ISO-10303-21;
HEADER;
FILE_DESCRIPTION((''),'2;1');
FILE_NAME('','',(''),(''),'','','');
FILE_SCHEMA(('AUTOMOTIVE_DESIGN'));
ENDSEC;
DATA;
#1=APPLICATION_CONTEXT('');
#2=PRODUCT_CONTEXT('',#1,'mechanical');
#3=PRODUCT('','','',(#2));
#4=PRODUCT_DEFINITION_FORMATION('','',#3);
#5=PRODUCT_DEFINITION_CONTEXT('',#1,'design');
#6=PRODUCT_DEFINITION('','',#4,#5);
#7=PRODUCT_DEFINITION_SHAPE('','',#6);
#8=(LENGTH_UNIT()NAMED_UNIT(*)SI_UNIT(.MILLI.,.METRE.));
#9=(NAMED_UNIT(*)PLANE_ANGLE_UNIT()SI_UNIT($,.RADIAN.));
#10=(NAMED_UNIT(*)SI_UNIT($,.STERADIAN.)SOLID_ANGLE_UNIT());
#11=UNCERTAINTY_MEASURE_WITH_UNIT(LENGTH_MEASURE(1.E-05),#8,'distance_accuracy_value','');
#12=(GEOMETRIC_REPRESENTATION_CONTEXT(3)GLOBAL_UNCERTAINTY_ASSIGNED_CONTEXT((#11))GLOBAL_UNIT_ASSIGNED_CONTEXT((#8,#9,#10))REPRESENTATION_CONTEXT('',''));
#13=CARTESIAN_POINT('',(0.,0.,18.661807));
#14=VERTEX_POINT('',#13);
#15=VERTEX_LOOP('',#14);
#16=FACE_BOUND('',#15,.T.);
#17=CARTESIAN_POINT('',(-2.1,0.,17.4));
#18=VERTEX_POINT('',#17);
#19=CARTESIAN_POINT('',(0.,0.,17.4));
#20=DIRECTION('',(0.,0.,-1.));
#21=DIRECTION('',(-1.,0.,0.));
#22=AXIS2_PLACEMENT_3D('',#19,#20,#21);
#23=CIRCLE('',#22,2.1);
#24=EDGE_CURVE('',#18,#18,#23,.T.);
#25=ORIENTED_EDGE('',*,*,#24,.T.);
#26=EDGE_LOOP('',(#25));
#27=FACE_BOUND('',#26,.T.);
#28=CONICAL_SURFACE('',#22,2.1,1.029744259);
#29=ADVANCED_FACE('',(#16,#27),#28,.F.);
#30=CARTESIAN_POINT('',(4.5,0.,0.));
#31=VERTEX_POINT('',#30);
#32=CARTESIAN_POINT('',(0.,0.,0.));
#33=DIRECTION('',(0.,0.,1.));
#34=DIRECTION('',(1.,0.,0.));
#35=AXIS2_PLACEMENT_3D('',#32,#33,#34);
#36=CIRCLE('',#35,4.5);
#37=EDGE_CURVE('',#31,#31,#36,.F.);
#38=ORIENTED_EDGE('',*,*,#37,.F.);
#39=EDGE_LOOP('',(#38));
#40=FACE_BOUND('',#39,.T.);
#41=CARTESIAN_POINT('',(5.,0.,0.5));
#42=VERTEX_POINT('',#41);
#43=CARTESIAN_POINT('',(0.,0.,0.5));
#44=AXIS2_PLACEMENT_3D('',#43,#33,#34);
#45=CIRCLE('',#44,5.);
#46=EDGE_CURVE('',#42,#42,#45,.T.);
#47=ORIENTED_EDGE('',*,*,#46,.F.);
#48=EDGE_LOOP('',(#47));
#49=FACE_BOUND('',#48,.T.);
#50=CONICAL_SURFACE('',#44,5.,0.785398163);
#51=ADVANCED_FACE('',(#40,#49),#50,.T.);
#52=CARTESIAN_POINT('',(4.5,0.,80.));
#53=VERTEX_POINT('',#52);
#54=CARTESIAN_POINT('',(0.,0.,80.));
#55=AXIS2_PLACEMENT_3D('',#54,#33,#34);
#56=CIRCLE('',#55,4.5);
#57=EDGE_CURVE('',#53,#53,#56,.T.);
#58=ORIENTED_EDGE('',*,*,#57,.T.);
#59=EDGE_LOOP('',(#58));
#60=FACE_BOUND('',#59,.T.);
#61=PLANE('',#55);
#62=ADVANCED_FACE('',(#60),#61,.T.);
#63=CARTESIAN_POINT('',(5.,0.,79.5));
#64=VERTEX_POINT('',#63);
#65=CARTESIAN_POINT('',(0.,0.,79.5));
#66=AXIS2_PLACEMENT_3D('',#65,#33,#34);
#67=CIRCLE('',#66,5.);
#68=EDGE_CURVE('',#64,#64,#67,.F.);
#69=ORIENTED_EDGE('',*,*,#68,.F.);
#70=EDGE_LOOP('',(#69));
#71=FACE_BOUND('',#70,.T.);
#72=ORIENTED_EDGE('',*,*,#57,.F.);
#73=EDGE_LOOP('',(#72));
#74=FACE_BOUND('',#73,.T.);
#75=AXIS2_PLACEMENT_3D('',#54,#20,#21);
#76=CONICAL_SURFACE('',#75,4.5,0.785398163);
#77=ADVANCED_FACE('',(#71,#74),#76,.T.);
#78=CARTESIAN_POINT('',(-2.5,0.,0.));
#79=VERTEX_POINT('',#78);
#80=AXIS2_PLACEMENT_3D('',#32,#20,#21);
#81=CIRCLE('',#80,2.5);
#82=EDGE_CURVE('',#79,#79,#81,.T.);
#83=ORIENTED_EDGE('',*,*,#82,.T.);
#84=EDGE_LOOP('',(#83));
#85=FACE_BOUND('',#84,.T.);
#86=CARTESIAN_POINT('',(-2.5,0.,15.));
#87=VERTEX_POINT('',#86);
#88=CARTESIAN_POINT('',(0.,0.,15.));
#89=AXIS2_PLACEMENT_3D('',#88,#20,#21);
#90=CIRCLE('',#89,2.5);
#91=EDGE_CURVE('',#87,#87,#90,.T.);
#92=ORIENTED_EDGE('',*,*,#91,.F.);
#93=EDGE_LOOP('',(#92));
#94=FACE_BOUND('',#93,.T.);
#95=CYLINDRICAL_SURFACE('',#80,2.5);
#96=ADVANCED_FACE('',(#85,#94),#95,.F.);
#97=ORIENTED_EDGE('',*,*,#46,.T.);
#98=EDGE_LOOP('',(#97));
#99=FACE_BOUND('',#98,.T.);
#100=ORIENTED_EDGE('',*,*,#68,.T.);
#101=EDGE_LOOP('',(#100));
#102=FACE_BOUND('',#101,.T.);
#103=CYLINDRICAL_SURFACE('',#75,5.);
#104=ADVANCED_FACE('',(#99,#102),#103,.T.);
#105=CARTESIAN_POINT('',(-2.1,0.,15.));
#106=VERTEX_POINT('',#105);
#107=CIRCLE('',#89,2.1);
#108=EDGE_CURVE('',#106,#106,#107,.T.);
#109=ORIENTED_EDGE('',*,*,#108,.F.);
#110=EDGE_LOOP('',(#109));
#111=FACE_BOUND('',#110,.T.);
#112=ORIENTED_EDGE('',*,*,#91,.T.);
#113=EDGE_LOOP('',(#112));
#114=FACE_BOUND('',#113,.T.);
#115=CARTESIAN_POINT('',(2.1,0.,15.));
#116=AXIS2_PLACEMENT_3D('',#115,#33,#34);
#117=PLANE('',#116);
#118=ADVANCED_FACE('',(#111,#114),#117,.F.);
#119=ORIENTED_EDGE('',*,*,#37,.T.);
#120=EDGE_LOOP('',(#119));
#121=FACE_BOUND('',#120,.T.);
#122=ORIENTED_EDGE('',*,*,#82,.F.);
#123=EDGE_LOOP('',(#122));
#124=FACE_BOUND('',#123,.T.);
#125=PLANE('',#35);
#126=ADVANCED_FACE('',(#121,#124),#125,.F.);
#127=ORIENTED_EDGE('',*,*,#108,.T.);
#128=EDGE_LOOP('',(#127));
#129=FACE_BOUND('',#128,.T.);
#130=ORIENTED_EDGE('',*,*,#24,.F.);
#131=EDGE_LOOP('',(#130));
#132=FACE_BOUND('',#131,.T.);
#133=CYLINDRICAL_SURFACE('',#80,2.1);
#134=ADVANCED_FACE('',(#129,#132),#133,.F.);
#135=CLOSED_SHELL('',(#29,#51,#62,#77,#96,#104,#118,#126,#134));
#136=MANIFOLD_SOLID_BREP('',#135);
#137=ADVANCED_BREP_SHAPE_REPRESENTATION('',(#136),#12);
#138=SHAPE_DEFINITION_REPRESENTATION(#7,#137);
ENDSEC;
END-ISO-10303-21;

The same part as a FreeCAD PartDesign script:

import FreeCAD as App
import Part
import Sketcher
Q = App.Units.Quantity


def edges_at(feature, points):
    """Names of the edges that pass closest to the given points."""
    edges = feature.Shape.Edges
    near = lambda p: min(range(len(edges)), key=lambda i: edges[i].distToShape(Part.Vertex(*p))[0])
    return sorted({f"Edge{near(p) + 1}" for p in points})

doc = App.newDocument("Part")
body = doc.addObject("PartDesign::Body", "Body")

sketch1 = doc.addObject("Sketcher::SketchObject", "Sketch")
body.addObject(sketch1)
sketch1.AttachmentSupport = (doc.XY_Plane, [""])
sketch1.MapMode = "FlatFace"
sketch1.addGeometry(Part.Circle(App.Vector(0, 0, 0), App.Vector(0, 0, 1), 5), False)
sketch1.addConstraint(Sketcher.Constraint("Coincident", 0, 3, -1, 1))
sketch1.addConstraint(Sketcher.Constraint("Diameter", 0, Q("10 mm")))
pad1 = doc.addObject("PartDesign::Pad", "Pad")
body.addObject(pad1)
pad1.Profile = sketch1
pad1.Length = 80

sketch2 = doc.addObject("Sketcher::SketchObject", "Sketch001")
body.addObject(sketch2)
sketch2.AttachmentSupport = (doc.XY_Plane, [""])
sketch2.MapMode = "FlatFace"
sketch2.addGeometry(Part.Circle(App.Vector(0, 0, 0), App.Vector(0, 0, 1), 2.1), False)
sketch2.addConstraint(Sketcher.Constraint("Coincident", 0, 3, -1, 1))
sketch2.addConstraint(Sketcher.Constraint("Diameter", 0, Q("4.2 mm")))
doc.recompute()
hole = doc.addObject("PartDesign::Hole", "Hole")
body.addObject(hole)
hole.Profile = sketch2
hole.ThreadType = "None"
hole.Diameter = 4.2
hole.DepthType = "Dimension"
hole.Depth = 17.4
hole.DrillPoint = "Angled"
hole.DrillPointAngle = 118
hole.HoleCutType = "Counterbore"
hole.HoleCutDiameter = 5
hole.HoleCutDepth = 15
hole.Reversed = True
doc.recompute()

chamfer = doc.addObject("PartDesign::Chamfer", "Chamfer")
body.addObject(chamfer)
chamfer.Base = (hole, edges_at(hole, [(-5, 0, 0), (-5, 0, 80)]))
chamfer.Size = 0.5

doc.recompute()
